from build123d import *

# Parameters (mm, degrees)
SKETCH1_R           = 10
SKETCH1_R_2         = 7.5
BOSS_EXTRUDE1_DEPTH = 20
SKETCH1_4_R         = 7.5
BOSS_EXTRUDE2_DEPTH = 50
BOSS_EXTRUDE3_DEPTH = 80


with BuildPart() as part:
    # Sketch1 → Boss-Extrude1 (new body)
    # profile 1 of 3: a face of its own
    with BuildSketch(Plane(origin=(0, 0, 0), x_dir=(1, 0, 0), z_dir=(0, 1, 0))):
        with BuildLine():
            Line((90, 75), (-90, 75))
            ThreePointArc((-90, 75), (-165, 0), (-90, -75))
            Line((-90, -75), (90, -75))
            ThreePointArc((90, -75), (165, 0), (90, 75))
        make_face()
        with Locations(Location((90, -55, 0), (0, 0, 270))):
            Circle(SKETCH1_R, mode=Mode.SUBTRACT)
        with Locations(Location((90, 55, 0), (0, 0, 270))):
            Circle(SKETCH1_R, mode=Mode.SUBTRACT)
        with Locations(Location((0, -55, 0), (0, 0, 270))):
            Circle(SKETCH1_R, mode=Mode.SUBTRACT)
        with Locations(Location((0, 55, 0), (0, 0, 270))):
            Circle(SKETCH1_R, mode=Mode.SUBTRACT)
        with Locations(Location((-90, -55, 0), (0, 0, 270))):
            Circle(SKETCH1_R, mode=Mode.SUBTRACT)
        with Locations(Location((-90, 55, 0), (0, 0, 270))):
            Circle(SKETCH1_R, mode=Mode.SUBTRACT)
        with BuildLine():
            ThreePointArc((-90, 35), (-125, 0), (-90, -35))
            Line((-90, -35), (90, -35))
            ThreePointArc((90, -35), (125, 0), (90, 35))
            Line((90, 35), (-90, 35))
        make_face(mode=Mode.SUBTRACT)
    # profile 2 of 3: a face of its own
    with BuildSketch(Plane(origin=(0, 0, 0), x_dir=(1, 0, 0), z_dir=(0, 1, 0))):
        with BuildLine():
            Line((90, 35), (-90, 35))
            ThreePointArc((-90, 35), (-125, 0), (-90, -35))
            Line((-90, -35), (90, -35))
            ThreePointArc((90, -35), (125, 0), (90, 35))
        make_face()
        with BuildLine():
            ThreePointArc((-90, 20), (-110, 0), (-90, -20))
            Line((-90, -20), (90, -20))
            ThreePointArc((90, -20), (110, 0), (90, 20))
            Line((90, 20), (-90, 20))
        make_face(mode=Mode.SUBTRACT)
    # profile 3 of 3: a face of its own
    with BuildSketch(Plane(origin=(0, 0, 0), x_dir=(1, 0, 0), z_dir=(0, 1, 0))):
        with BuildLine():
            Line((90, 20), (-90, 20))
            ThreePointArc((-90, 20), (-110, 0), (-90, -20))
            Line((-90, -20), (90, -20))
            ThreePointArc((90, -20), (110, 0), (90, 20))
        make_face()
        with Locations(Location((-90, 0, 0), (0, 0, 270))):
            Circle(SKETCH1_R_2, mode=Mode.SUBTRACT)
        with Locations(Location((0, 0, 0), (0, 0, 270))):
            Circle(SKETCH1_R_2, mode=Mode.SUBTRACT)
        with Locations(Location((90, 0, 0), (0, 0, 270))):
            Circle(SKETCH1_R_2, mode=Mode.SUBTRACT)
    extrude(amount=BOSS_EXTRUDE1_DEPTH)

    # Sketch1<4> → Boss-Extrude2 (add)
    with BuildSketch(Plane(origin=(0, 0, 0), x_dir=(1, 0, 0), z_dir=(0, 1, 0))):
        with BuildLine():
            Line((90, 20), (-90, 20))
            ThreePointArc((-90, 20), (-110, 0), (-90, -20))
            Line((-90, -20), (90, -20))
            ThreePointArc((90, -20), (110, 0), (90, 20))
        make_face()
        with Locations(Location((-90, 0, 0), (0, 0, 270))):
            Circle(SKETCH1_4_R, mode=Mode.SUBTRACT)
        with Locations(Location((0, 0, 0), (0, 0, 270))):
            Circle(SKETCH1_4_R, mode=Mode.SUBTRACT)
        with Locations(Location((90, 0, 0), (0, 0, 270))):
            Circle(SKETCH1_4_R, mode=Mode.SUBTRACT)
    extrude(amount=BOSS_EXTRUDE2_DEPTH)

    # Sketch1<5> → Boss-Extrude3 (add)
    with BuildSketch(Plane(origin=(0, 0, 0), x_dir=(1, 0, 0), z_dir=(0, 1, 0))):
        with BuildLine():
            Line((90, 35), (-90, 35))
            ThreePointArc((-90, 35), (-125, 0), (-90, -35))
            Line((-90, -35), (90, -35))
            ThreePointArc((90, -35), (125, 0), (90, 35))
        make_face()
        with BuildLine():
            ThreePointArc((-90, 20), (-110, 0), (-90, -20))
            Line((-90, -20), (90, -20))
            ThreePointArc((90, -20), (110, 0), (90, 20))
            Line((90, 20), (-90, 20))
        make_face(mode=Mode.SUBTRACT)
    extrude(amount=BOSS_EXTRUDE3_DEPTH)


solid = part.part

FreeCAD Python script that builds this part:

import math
import FreeCAD as App
import Part
import Sketcher

V = App.Vector

doc = App.newDocument("Part")
body = doc.addObject("PartDesign::Body", "Body")

sketch1 = body.newObject("Sketcher::SketchObject", "Sketch")
sketch1.AttachmentSupport = (doc.getObject("XZ_Plane"), [""])
sketch1.MapMode = "FlatFace"
sketch1.addGeometry(Part.LineSegment(V(90, -75, 0), V(-90, -75, 0)), False)
sketch1.addGeometry(Part.ArcOfCircle(Part.Circle(V(-90, 0, 0), V(0, 0, 1), 75), math.radians(90), math.radians(270)), False)
sketch1.addGeometry(Part.LineSegment(V(-90, 75, 0), V(90, 75, 0)), False)
sketch1.addGeometry(Part.ArcOfCircle(Part.Circle(V(90, 0, 0), V(0, 0, 1), 75), math.radians(-90), math.radians(90)), False)
sketch1.addGeometry(Part.Circle(V(-90, 55, 0), V(0, 0, 1), 10), False)
sketch1.addGeometry(Part.Circle(V(0, 55, 0), V(0, 0, 1), 10), False)
sketch1.addGeometry(Part.Circle(V(90, 55, 0), V(0, 0, 1), 10), False)
sketch1.addGeometry(Part.Circle(V(-90, -55, 0), V(0, 0, 1), 10), False)
sketch1.addGeometry(Part.Circle(V(0, -55, 0), V(0, 0, 1), 10), False)
sketch1.addGeometry(Part.Circle(V(90, -55, 0), V(0, 0, 1), 10), False)
sketch1.addGeometry(Part.Circle(V(-90, 0, 0), V(0, 0, 1), 8), False)
sketch1.addGeometry(Part.Circle(V(0, 0, 0), V(0, 0, 1), 8), False)
sketch1.addGeometry(Part.Circle(V(90, 0, 0), V(0, 0, 1), 8), False)
sketch1.addConstraint(Sketcher.Constraint("Tangent", 0, 2, 1, 2))
sketch1.addConstraint(Sketcher.Constraint("Tangent", 1, 1, 2, 1))
sketch1.addConstraint(Sketcher.Constraint("Tangent", 2, 2, 3, 2))
sketch1.addConstraint(Sketcher.Constraint("Tangent", 3, 1, 0, 1))
sketch1.addConstraint(Sketcher.Constraint("Horizontal", 0))
sketch1.addConstraint(Sketcher.Constraint("Horizontal", 2))
sketch1.addConstraint(Sketcher.Constraint("Coincident", 11, 3, -1, 1))
sketch1.addConstraint(Sketcher.Constraint("Coincident", 10, 3, 1, 3))
sketch1.addConstraint(Sketcher.Constraint("Coincident", 12, 3, 3, 3))
sketch1.addConstraint(Sketcher.Constraint("Equal", 4, 5))
sketch1.addConstraint(Sketcher.Constraint("Equal", 5, 6))
sketch1.addConstraint(Sketcher.Constraint("Equal", 6, 7))
sketch1.addConstraint(Sketcher.Constraint("Equal", 7, 8))
sketch1.addConstraint(Sketcher.Constraint("Equal", 8, 9))
sketch1.addConstraint(Sketcher.Constraint("Equal", 10, 11))
sketch1.addConstraint(Sketcher.Constraint("Equal", 11, 12))
sketch1.addConstraint(Sketcher.Constraint("Symmetric", 1, 3, 3, 3, -1, 1))
sketch1.addConstraint(Sketcher.Constraint("Symmetric", 6, 3, 7, 3, -1, 1))
sketch1.addConstraint(Sketcher.Constraint("Symmetric", 5, 3, 8, 3, -1, 1))
sketch1.addConstraint(Sketcher.Constraint("Symmetric", 4, 3, 9, 3, -1, 1))
sketch1.addConstraint(Sketcher.Constraint("Symmetric", 4, 3, 6, 3, -2))
sketch1.addConstraint(Sketcher.Constraint("PointOnObject", 5, 3, -2))
sketch1.addConstraint(Sketcher.Constraint("Horizontal", 4, 3, 5, 3))
sketch1.addConstraint(Sketcher.Constraint("Vertical", 1, 3, 4, 3))
sketch1.addConstraint(Sketcher.Constraint("Diameter", 4, 20.0))
sketch1.addConstraint(Sketcher.Constraint("Diameter", 10, 15.0))
sketch1.addConstraint(Sketcher.Constraint("Radius", 1, 75.0))
sketch1.addConstraint(Sketcher.Constraint("DistanceX", 0, 2, 0, 1, 180.0))
sketch1.addConstraint(Sketcher.Constraint("DistanceY", -1, 1, 4, 3, 55.0))
pad1 = body.newObject("PartDesign::Pad", "Pad")
pad1.Profile = sketch1
pad1.Length = 20
pad1.Reversed = True

sketch2 = body.newObject("Sketcher::SketchObject", "Sketch001")
sketch2.AttachmentSupport = (doc.getObject("XZ_Plane"), [""])
sketch2.MapMode = "FlatFace"
sketch2.addGeometry(Part.LineSegment(V(90, -20, 0), V(-90, -20, 0)), False)
sketch2.addGeometry(Part.ArcOfCircle(Part.Circle(V(-90, 0, 0), V(0, 0, 1), 20), math.radians(90), math.radians(270)), False)
sketch2.addGeometry(Part.LineSegment(V(-90, 20, 0), V(90, 20, 0)), False)
sketch2.addGeometry(Part.ArcOfCircle(Part.Circle(V(90, 0, 0), V(0, 0, 1), 20), math.radians(-90), math.radians(90)), False)
sketch2.addGeometry(Part.Circle(V(-90, 0, 0), V(0, 0, 1), 8), False)
sketch2.addGeometry(Part.Circle(V(0, 0, 0), V(0, 0, 1), 8), False)
sketch2.addGeometry(Part.Circle(V(90, 0, 0), V(0, 0, 1), 8), False)
sketch2.addConstraint(Sketcher.Constraint("Tangent", 0, 2, 1, 2))
sketch2.addConstraint(Sketcher.Constraint("Tangent", 1, 1, 2, 1))
sketch2.addConstraint(Sketcher.Constraint("Tangent", 2, 2, 3, 2))
sketch2.addConstraint(Sketcher.Constraint("Tangent", 3, 1, 0, 1))
sketch2.addConstraint(Sketcher.Constraint("Horizontal", 0))
sketch2.addConstraint(Sketcher.Constraint("Horizontal", 2))
sketch2.addConstraint(Sketcher.Constraint("Coincident", 5, 3, -1, 1))
sketch2.addConstraint(Sketcher.Constraint("Coincident", 4, 3, 1, 3))
sketch2.addConstraint(Sketcher.Constraint("Coincident", 6, 3, 3, 3))
sketch2.addConstraint(Sketcher.Constraint("Equal", 4, 5))
sketch2.addConstraint(Sketcher.Constraint("Equal", 5, 6))
sketch2.addConstraint(Sketcher.Constraint("Symmetric", 1, 3, 3, 3, -1, 1))
sketch2.addConstraint(Sketcher.Constraint("Diameter", 4, 15.0))
sketch2.addConstraint(Sketcher.Constraint("Radius", 1, 20.0))
sketch2.addConstraint(Sketcher.Constraint("DistanceX", 0, 2, 0, 1, 180.0))
pad2 = body.newObject("PartDesign::Pad", "Pad001")
pad2.Profile = sketch2
pad2.Length = 50
pad2.Reversed = True

sketch3 = body.newObject("Sketcher::SketchObject", "Sketch002")
sketch3.AttachmentSupport = (doc.getObject("XZ_Plane"), [""])
sketch3.MapMode = "FlatFace"
sketch3.addGeometry(Part.LineSegment(V(90, -35, 0), V(-90, -35, 0)), False)
sketch3.addGeometry(Part.ArcOfCircle(Part.Circle(V(-90, 0, 0), V(0, 0, 1), 35), math.radians(90), math.radians(270)), False)
sketch3.addGeometry(Part.LineSegment(V(-90, 35, 0), V(90, 35, 0)), False)
sketch3.addGeometry(Part.ArcOfCircle(Part.Circle(V(90, 0, 0), V(0, 0, 1), 35), math.radians(-90), math.radians(90)), False)
sketch3.addGeometry(Part.ArcOfCircle(Part.Circle(V(-90, 0, 0), V(0, 0, 1), 20), math.radians(90), math.radians(270)), False)
sketch3.addGeometry(Part.LineSegment(V(-90, -20, 0), V(90, -20, 0)), False)
sketch3.addGeometry(Part.ArcOfCircle(Part.Circle(V(90, 0, 0), V(0, 0, 1), 20), math.radians(-90), math.radians(90)), False)
sketch3.addGeometry(Part.LineSegment(V(90, 20, 0), V(-90, 20, 0)), False)
sketch3.addConstraint(Sketcher.Constraint("Tangent", 0, 2, 1, 2))
sketch3.addConstraint(Sketcher.Constraint("Tangent", 1, 1, 2, 1))
sketch3.addConstraint(Sketcher.Constraint("Tangent", 2, 2, 3, 2))
sketch3.addConstraint(Sketcher.Constraint("Tangent", 3, 1, 0, 1))
sketch3.addConstraint(Sketcher.Constraint("Tangent", 4, 2, 5, 1))
sketch3.addConstraint(Sketcher.Constraint("Tangent", 5, 2, 6, 1))
sketch3.addConstraint(Sketcher.Constraint("Tangent", 6, 2, 7, 1))
sketch3.addConstraint(Sketcher.Constraint("Tangent", 7, 2, 4, 1))
sketch3.addConstraint(Sketcher.Constraint("Horizontal", 0))
sketch3.addConstraint(Sketcher.Constraint("Horizontal", 2))
sketch3.addConstraint(Sketcher.Constraint("Horizontal", 5))
sketch3.addConstraint(Sketcher.Constraint("Horizontal", 7))
sketch3.addConstraint(Sketcher.Constraint("Coincident", 4, 3, 1, 3))
sketch3.addConstraint(Sketcher.Constraint("Symmetric", 1, 3, 3, 3, -1, 1))
sketch3.addConstraint(Sketcher.Constraint("Vertical", 6, 3, 2, 2))
sketch3.addConstraint(Sketcher.Constraint("Radius", 1, 35.0))
sketch3.addConstraint(Sketcher.Constraint("Radius", 4, 20.0))
sketch3.addConstraint(Sketcher.Constraint("DistanceX", 0, 2, 0, 1, 180.0))
pad3 = body.newObject("PartDesign::Pad", "Pad002")
pad3.Profile = sketch3
pad3.Length = 80
pad3.Reversed = True

doc.recompute()
